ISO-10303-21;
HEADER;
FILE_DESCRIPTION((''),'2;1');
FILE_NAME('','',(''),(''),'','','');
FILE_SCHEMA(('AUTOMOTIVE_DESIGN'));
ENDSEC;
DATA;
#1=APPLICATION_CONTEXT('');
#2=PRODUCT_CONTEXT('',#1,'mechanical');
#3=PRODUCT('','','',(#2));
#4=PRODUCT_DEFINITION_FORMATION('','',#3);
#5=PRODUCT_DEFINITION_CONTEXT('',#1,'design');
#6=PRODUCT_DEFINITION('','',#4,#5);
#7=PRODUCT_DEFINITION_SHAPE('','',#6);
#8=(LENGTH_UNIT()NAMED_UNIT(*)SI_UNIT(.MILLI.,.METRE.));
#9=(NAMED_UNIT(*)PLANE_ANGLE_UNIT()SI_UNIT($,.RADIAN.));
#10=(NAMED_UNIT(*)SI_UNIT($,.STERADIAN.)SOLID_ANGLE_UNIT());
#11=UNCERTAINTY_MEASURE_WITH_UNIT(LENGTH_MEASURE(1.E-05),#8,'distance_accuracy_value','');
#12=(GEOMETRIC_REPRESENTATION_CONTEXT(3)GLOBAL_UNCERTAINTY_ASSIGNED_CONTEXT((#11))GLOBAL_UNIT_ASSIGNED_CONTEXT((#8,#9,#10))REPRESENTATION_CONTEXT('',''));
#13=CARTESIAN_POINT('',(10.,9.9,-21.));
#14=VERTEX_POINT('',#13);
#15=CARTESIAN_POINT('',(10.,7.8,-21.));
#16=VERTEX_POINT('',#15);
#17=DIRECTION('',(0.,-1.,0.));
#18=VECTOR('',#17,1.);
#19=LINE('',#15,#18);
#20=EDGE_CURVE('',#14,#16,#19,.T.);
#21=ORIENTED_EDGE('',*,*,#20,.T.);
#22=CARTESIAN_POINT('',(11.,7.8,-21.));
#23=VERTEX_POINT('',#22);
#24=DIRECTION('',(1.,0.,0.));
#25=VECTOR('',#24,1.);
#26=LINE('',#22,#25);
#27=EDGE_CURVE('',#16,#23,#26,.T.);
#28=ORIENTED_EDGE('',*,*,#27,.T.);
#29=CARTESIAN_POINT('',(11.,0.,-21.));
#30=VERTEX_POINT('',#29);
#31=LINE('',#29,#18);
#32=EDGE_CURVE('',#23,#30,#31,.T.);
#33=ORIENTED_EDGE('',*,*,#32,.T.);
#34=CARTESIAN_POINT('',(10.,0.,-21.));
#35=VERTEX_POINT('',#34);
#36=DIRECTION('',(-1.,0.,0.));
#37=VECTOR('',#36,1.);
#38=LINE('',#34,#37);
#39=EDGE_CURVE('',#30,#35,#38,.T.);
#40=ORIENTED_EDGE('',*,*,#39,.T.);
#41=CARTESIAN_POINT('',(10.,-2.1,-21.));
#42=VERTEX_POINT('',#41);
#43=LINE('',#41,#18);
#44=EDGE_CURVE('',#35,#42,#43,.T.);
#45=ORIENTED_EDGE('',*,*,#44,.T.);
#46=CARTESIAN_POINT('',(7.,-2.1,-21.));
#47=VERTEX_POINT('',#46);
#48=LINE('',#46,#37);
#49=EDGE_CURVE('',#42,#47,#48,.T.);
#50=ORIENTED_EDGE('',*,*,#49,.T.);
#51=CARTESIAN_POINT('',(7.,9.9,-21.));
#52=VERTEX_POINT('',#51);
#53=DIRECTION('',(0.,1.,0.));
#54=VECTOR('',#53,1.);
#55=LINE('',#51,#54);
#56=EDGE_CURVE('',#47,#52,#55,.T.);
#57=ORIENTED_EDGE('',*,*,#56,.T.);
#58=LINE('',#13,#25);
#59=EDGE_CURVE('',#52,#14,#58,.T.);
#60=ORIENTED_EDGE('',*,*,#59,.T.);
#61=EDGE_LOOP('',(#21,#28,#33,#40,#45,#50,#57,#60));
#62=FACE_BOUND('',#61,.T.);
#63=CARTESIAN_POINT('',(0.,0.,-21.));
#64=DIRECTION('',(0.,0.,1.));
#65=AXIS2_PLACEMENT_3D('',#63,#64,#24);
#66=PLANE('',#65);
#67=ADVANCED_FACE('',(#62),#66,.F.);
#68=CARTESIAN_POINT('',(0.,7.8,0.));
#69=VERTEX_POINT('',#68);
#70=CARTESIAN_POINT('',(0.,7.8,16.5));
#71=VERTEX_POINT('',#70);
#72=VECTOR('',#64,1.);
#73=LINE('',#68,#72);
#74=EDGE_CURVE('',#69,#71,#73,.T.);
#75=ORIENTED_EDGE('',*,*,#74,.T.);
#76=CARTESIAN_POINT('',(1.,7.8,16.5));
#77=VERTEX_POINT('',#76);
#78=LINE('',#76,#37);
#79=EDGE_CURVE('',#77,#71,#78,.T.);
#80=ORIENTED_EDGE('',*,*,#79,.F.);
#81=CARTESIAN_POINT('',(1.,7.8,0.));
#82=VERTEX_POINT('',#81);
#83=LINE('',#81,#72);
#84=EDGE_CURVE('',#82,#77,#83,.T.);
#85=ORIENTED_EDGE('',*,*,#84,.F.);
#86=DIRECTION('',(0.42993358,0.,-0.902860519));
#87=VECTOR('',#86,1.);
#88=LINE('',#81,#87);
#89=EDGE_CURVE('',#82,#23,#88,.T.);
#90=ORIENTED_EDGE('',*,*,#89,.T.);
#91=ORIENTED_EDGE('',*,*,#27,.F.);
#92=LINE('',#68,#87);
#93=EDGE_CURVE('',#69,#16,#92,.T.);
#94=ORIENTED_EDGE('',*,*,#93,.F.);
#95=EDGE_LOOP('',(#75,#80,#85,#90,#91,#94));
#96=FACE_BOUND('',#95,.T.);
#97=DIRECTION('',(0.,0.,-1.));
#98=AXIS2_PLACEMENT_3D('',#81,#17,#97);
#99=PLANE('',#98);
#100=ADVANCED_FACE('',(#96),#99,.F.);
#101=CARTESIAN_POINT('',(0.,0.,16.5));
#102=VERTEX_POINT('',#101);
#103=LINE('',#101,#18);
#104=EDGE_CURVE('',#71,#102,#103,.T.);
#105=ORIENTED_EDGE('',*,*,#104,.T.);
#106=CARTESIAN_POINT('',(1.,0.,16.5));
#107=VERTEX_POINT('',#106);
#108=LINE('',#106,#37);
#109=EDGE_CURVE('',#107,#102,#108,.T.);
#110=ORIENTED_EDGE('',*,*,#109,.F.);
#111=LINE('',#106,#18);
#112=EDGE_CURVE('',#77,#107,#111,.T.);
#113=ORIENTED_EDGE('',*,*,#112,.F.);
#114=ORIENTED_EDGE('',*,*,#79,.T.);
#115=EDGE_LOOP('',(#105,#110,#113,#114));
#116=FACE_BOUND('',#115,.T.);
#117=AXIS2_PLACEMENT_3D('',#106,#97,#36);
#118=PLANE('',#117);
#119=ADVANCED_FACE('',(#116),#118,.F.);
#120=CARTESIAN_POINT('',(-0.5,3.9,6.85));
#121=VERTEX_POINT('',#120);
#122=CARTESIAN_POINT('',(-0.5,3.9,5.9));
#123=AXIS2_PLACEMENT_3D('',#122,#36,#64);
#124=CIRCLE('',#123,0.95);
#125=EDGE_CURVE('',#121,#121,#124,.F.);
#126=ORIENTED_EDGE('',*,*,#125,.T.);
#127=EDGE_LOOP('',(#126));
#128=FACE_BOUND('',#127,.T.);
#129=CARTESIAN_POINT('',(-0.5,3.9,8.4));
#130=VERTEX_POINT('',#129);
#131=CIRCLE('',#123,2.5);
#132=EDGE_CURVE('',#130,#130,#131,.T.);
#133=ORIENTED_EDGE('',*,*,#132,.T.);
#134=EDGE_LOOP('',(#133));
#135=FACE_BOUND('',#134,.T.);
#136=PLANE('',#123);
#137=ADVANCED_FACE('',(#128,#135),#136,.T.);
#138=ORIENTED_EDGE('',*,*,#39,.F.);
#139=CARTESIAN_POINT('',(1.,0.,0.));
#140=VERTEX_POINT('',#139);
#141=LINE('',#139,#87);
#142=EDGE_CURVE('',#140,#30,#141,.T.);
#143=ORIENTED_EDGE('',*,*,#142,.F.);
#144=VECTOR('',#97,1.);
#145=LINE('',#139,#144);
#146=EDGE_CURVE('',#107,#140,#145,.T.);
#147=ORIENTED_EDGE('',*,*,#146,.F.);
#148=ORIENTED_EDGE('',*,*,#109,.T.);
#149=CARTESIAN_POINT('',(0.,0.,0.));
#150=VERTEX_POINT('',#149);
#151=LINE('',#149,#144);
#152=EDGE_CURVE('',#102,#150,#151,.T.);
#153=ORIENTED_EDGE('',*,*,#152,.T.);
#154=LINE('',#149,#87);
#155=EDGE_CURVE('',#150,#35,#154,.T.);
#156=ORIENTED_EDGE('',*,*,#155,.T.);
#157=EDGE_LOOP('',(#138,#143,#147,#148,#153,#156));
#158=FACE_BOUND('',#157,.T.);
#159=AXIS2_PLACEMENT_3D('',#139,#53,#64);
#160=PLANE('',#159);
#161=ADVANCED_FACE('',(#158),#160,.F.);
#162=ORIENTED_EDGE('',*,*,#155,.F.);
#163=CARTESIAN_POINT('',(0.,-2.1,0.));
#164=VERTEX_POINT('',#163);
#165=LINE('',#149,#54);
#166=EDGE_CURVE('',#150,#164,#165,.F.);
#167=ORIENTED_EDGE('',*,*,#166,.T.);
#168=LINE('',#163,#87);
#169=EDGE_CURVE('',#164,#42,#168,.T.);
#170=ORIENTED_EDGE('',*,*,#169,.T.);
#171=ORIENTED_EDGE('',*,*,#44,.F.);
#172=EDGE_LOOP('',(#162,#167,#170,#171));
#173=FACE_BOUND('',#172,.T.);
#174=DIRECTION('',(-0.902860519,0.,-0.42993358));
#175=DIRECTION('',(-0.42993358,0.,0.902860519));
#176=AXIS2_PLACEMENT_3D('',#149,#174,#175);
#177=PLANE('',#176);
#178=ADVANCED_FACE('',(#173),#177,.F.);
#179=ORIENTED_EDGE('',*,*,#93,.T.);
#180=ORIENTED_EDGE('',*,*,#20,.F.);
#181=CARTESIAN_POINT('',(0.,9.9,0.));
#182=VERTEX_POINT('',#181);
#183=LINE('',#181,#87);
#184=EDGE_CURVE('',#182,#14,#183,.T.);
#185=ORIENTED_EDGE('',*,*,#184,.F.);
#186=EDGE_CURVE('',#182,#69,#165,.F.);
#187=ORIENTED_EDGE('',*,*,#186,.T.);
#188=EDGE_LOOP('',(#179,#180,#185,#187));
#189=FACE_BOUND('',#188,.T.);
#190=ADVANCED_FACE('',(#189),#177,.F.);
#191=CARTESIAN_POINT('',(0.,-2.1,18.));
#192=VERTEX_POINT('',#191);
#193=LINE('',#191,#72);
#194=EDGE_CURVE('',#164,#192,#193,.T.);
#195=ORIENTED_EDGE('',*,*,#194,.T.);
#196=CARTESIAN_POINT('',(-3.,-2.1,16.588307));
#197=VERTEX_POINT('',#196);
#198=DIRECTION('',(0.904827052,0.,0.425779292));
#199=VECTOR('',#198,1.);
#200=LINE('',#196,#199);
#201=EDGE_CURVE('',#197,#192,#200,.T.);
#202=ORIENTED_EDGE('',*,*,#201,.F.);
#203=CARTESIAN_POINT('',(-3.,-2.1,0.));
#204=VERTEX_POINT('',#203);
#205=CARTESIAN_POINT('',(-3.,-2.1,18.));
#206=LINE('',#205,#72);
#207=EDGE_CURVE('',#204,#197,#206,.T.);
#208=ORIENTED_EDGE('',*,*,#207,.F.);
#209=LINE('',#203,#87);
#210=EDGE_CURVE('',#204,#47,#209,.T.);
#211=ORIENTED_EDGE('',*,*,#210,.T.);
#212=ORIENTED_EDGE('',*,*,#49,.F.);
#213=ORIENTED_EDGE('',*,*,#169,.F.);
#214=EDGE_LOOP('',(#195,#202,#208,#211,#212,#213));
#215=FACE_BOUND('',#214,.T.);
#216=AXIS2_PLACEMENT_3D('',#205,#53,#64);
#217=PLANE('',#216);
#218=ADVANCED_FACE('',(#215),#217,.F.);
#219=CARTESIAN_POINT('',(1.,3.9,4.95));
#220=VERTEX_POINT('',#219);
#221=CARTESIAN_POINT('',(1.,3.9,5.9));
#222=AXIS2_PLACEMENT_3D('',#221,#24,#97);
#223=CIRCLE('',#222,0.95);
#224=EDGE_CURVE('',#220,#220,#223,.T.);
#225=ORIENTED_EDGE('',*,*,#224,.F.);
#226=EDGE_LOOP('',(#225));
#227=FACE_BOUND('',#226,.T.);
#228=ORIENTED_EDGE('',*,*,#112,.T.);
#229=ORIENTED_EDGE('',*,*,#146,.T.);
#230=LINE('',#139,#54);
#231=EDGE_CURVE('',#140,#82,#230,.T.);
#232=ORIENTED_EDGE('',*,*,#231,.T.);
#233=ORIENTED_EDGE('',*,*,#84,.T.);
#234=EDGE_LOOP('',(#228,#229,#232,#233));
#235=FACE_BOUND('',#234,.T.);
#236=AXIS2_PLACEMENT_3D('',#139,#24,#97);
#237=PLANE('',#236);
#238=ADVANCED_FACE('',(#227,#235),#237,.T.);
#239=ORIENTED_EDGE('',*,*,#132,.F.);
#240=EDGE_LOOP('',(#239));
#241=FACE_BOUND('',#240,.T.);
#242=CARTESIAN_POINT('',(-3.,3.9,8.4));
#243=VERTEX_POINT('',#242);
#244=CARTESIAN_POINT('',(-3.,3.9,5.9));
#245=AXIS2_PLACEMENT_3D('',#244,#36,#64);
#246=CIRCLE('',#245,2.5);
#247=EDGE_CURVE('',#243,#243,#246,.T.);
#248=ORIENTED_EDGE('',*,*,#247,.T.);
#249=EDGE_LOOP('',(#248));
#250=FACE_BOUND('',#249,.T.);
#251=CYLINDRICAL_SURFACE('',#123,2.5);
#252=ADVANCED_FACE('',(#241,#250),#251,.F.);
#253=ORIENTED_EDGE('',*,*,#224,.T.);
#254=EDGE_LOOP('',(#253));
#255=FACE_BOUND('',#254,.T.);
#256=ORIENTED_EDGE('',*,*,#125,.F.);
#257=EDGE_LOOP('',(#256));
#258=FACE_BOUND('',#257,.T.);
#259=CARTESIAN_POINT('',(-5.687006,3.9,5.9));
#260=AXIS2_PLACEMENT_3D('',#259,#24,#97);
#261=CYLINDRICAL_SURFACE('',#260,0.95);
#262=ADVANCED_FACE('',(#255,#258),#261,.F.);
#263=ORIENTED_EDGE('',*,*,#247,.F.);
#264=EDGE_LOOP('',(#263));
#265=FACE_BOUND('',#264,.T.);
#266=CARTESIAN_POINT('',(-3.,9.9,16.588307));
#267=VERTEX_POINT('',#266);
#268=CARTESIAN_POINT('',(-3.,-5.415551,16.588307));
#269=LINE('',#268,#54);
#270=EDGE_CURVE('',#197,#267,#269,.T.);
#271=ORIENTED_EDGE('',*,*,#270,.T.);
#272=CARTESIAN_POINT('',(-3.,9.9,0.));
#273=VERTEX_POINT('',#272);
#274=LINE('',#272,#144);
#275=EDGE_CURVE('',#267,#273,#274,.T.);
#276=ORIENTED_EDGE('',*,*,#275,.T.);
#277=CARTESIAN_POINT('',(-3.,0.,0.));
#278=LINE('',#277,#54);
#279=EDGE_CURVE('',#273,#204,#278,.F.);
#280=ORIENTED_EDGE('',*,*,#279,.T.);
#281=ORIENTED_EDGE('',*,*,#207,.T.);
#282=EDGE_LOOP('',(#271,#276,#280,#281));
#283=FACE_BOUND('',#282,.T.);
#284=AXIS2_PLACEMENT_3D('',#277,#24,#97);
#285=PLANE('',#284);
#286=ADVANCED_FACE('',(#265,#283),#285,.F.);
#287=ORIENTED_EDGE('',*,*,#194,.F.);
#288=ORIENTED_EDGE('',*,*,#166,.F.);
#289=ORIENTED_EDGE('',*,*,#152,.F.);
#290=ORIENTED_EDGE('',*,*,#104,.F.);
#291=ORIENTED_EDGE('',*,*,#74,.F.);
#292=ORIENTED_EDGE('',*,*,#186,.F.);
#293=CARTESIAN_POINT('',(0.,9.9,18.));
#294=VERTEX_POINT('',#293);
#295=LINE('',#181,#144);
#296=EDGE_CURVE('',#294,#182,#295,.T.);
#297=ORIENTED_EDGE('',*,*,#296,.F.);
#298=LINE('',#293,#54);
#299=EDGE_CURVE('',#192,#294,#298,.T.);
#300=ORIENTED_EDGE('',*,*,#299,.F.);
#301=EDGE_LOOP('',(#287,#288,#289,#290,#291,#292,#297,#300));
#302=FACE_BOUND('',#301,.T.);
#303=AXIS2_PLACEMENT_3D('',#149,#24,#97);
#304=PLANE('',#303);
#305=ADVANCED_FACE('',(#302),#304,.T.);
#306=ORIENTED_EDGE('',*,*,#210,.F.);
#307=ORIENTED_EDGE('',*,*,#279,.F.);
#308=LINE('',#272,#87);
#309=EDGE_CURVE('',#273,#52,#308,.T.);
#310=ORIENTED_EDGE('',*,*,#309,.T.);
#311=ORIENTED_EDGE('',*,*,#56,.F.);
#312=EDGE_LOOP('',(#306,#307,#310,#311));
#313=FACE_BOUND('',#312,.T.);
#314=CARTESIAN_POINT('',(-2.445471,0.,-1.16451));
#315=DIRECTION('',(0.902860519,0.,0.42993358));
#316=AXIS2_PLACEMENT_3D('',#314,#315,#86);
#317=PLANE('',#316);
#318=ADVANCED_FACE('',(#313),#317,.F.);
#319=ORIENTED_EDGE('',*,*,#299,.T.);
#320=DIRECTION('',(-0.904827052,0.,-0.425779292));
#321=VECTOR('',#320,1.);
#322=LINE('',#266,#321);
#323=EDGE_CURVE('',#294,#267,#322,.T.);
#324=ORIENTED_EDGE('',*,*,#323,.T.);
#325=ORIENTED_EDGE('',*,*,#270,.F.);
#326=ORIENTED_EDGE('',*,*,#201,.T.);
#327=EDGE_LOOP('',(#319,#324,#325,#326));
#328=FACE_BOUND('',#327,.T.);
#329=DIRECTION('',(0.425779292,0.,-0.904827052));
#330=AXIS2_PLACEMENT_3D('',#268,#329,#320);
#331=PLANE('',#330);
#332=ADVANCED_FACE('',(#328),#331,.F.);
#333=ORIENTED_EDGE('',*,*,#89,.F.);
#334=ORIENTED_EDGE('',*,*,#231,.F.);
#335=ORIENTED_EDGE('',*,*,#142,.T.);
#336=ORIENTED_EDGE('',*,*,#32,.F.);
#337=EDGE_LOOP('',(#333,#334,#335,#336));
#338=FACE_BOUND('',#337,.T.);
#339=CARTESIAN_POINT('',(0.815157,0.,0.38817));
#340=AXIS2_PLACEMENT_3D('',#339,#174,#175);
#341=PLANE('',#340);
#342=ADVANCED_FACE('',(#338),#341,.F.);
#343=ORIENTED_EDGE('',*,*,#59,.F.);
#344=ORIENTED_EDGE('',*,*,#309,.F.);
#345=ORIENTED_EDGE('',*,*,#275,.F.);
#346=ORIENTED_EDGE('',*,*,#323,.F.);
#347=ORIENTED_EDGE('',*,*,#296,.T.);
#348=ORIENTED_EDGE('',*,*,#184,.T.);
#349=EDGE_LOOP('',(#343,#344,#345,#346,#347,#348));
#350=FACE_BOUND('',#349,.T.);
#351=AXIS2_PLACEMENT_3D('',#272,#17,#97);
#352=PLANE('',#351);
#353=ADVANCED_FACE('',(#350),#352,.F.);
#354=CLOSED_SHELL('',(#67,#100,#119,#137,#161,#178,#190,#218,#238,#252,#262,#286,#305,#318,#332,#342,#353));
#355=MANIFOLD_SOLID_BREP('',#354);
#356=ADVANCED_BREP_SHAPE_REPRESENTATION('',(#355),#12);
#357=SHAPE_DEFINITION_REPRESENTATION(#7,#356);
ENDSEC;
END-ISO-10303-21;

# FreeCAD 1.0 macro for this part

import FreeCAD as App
import Part
import Sketcher

V = App.Vector
Q = App.Units.Quantity


def add_polygon(sketch, points):
    """Adds a closed chain of lines whose ends are joined by coincident constraints."""
    first, n = sketch.GeometryCount, len(points)
    for a, b in zip(points, points[1:] + points[:1]):
        sketch.addGeometry(Part.LineSegment(App.Vector(*a, 0), App.Vector(*b, 0)), False)
    for i in range(n):
        sketch.addConstraint(Sketcher.Constraint("Coincident", first + i, 2, first + (i + 1) % n, 1))

doc = App.newDocument("Part")
body = doc.addObject("PartDesign::Body", "Body")

sketch1 = body.newObject("Sketcher::SketchObject", "Sketch")
sketch1.AttachmentSupport = (doc.getObject("YZ_Plane"), [""])
sketch1.MapMode = "FlatFace"
add_polygon(sketch1, [(8, 16), (0, 16), (0, 0), (8, 0)])
sketch1.addConstraint(Sketcher.Constraint("Horizontal", 0))
sketch1.addConstraint(Sketcher.Constraint("Vertical", 1))
sketch1.addConstraint(Sketcher.Constraint("Horizontal", 2))
sketch1.addConstraint(Sketcher.Constraint("Vertical", 3))
sketch1.addConstraint(Sketcher.Constraint("Coincident", 1, 2, -1, 1))
sketch1.addConstraint(Sketcher.Constraint("DistanceX", 0, 2, 0, 1, Q("7.8 mm")))
sketch1.addConstraint(Sketcher.Constraint("DistanceY", 1, 2, 1, 1, Q("16.5 mm")))
pad1 = body.newObject("PartDesign::Pad", "Pad")
pad1.Profile = sketch1
pad1.Length = 1

sketch2 = body.newObject("Sketcher::SketchObject", "Sketch001")
sketch2.AttachmentSupport = (doc.getObject("YZ_Plane"), [""])
sketch2.MapMode = "FlatFace"
add_polygon(sketch2, [(10, 0), (-2, 0), (-2, 18), (10, 18)])
sketch2.addConstraint(Sketcher.Constraint("Horizontal", 0))
sketch2.addConstraint(Sketcher.Constraint("Vertical", 1))
sketch2.addConstraint(Sketcher.Constraint("Horizontal", 2))
sketch2.addConstraint(Sketcher.Constraint("Vertical", 3))
sketch2.addConstraint(Sketcher.Constraint("PointOnObject", 0, 2, -1))
sketch2.addConstraint(Sketcher.Constraint("DistanceX", 0, 2, 0, 1, Q("12 mm")))
sketch2.addConstraint(Sketcher.Constraint("DistanceY", 1, 1, 1, 2, Q("18 mm")))
sketch2.addConstraint(Sketcher.Constraint("DistanceX", 0, 2, -1, 1, Q("2.1 mm")))
pad2 = body.newObject("PartDesign::Pad", "Pad001")
pad2.Profile = sketch2
pad2.Length = 3
pad2.Reversed = True

sketch3 = body.newObject("Sketcher::SketchObject", "Sketch002")
sketch3.AttachmentSupport = (doc.getObject("XY_Plane"), [""])
sketch3.MapMode = "FlatFace"
add_polygon(sketch3, [(0, 9.9), (0, 7.8), (1, 7.8), (1, 0), (0, 0), (0, -2.1), (-3, -2.1), (-3, 9.9)])
sketch3.addConstraint(Sketcher.Constraint("Vertical", 0))
sketch3.addConstraint(Sketcher.Constraint("Horizontal", 1))
sketch3.addConstraint(Sketcher.Constraint("Vertical", 2))
sketch3.addConstraint(Sketcher.Constraint("Horizontal", 3))
sketch3.addConstraint(Sketcher.Constraint("Vertical", 4))
sketch3.addConstraint(Sketcher.Constraint("Horizontal", 5))
sketch3.addConstraint(Sketcher.Constraint("Vertical", 6))
sketch3.addConstraint(Sketcher.Constraint("Horizontal", 7))
sketch3.addConstraint(Sketcher.Constraint("Coincident", 3, 2, -1, 1))
sketch3.addConstraint(Sketcher.Constraint("PointOnObject", 0, 2, -2))
sketch3.addConstraint(Sketcher.Constraint("Equal", 0, 4))
sketch3.addConstraint(Sketcher.Constraint("DistanceX", 1, 1, 1, 2, Q("1 mm")))
sketch3.addConstraint(Sketcher.Constraint("DistanceX", 5, 2, 5, 1, Q("3 mm")))
sketch3.addConstraint(Sketcher.Constraint("DistanceY", 6, 1, 6, 2, Q("12 mm")))
sketch3.addConstraint(Sketcher.Constraint("DistanceY", 0, 2, 0, 1, Q("2.1 mm")))

sketch4 = body.newObject("Sketcher::SketchObject", "Sketch003")
sketch4.AttachmentSupport = (doc.getObject("XY_Plane"), [""])
sketch4.MapMode = "FlatFace"
sketch4.AttachmentOffset = App.Placement(V(0, 0, -21), App.Rotation())
add_polygon(sketch4, [(10, 7.8), (11, 7.8), (11, 0), (10, 0), (10, -2.1), (7, -2.1), (7, 9.9), (10, 9.9)])
sketch4.addConstraint(Sketcher.Constraint("Horizontal", 0))
sketch4.addConstraint(Sketcher.Constraint("Vertical", 1))
sketch4.addConstraint(Sketcher.Constraint("Horizontal", 2))
sketch4.addConstraint(Sketcher.Constraint("Vertical", 3))
sketch4.addConstraint(Sketcher.Constraint("Horizontal", 4))
sketch4.addConstraint(Sketcher.Constraint("Vertical", 5))
sketch4.addConstraint(Sketcher.Constraint("Horizontal", 6))
sketch4.addConstraint(Sketcher.Constraint("Vertical", 7))
sketch4.addConstraint(Sketcher.Constraint("PointOnObject", 1, 2, -1))
sketch4.addConstraint(Sketcher.Constraint("Vertical", 3, 2, 6, 2))
sketch4.addConstraint(Sketcher.Constraint("Equal", 3, 7))
sketch4.addConstraint(Sketcher.Constraint("DistanceX", 0, 1, 0, 2, Q("1 mm")))
sketch4.addConstraint(Sketcher.Constraint("DistanceX", 4, 2, 4, 1, Q("3 mm")))
sketch4.addConstraint(Sketcher.Constraint("DistanceY", 5, 1, 5, 2, Q("12 mm")))
sketch4.addConstraint(Sketcher.Constraint("DistanceY", 1, 2, 1, 1, Q("7.8 mm")))
sketch4.addConstraint(Sketcher.Constraint("DistanceX", -1, 1, 0, 2, Q("11 mm")))

additiveloft = body.newObject("PartDesign::AdditiveLoft", "AdditiveLoft")
additiveloft.Profile = sketch3
additiveloft.Sections = [sketch4]

sketch5 = body.newObject("Sketcher::SketchObject", "Sketch004")
sketch5.AttachmentSupport = (doc.getObject("XZ_Plane"), [""])
sketch5.MapMode = "FlatFace"
sketch5.AttachmentOffset = App.Placement(V(0, 0, -9.9), App.Rotation())
add_polygon(sketch5, [(-3, 18), (0, 18), (-3, 16.6)])
sketch5.addConstraint(Sketcher.Constraint("Horizontal", 0))
sketch5.addConstraint(Sketcher.Constraint("Vertical", 2))
sketch5.addConstraint(Sketcher.Constraint("PointOnObject", 0, 2, -2))
sketch5.addConstraint(Sketcher.Constraint("DistanceX", 0, 1, 0, 2, Q("3 mm")))
sketch5.addConstraint(Sketcher.Constraint("DistanceY", -1, 1, 0, 2, Q("18 mm")))
sketch5.addConstraint(Sketcher.Constraint("Angle", 1, Q("-154.8 deg")))
pocket1 = body.newObject("PartDesign::Pocket", "Pocket")
pocket1.Profile = sketch5
pocket1.Length = 12
pocket1.Reversed = True

sketch6 = body.newObject("Sketcher::SketchObject", "Sketch005")
sketch6.AttachmentSupport = (doc.getObject("YZ_Plane"), [""])
sketch6.MapMode = "FlatFace"
sketch6.AttachmentOffset = App.Placement(V(0, 0, 1), App.Rotation())
sketch6.addGeometry(Part.Circle(V(3.9, 5.9, 0), V(0, 0, 1), 0.9), False)
sketch6.addConstraint(Sketcher.Constraint("Diameter", 0, Q("1.9 mm")))
sketch6.addConstraint(Sketcher.Constraint("DistanceX", -1, 1, 0, 3, Q("3.9 mm")))
sketch6.addConstraint(Sketcher.Constraint("DistanceY", -1, 1, 0, 3, Q("5.9 mm")))
pocket2 = body.newObject("PartDesign::Pocket", "Pocket001")
pocket2.Profile = sketch6
pocket2.Length = 4

sketch7 = body.newObject("Sketcher::SketchObject", "Sketch006")
sketch7.AttachmentSupport = (doc.getObject("YZ_Plane"), [""])
sketch7.MapMode = "FlatFace"
sketch7.AttachmentOffset = App.Placement(V(0, 0, -3), App.Rotation())
sketch7.addGeometry(Part.Circle(V(3.9, 5.9, 0), V(0, 0, 1), 2.5), False)
sketch7.addConstraint(Sketcher.Constraint("Diameter", 0, Q("5 mm")))
sketch7.addConstraint(Sketcher.Constraint("DistanceX", -1, 1, 0, 3, Q("3.9 mm")))
sketch7.addConstraint(Sketcher.Constraint("DistanceY", -1, 1, 0, 3, Q("5.9 mm")))
pocket3 = body.newObject("PartDesign::Pocket", "Pocket002")
pocket3.Profile = sketch7
pocket3.Length = 2.5
pocket3.Reversed = True

doc.recompute()
